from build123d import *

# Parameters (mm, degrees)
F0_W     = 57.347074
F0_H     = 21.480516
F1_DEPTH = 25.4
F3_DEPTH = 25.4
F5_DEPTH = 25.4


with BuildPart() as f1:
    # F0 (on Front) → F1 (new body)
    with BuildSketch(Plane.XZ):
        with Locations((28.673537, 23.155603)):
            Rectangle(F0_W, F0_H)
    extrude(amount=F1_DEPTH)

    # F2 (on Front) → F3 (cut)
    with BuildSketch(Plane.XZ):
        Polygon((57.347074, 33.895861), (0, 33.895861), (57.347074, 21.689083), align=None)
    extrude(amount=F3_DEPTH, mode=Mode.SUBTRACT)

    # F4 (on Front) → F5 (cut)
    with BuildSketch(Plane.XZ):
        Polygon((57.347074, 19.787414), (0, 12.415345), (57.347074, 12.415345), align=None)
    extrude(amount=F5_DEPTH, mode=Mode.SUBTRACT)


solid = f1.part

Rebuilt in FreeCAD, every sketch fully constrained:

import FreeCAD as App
import Part
import Sketcher

V = App.Vector
Q = App.Units.Quantity


def add_polygon(sketch, points):
    """Adds a closed chain of lines whose ends are joined by coincident constraints."""
    first, n = sketch.GeometryCount, len(points)
    for a, b in zip(points, points[1:] + points[:1]):
        sketch.addGeometry(Part.LineSegment(App.Vector(*a, 0), App.Vector(*b, 0)), False)
    for i in range(n):
        sketch.addConstraint(Sketcher.Constraint("Coincident", first + i, 2, first + (i + 1) % n, 1))

doc = App.newDocument("Part")
body = doc.addObject("PartDesign::Body", "Body")

sketch1 = doc.addObject("Sketcher::SketchObject", "Sketch")
body.addObject(sketch1)
sketch1.AttachmentSupport = (doc.XZ_Plane, [""])
sketch1.MapMode = "FlatFace"
add_polygon(sketch1, [(0, 34), (0, 12), (57, 12), (57, 34)])
sketch1.addConstraint([
    Sketcher.Constraint("Vertical", 0),
    Sketcher.Constraint("Horizontal", 1),
    Sketcher.Constraint("Vertical", 2),
    Sketcher.Constraint("Horizontal", 3),
    Sketcher.Constraint("PointOnObject", 0, 2, -2),
    Sketcher.Constraint("DistanceX", 1, 1, 1, 2, 57.347074),
    Sketcher.Constraint("DistanceY", 0, 2, 0, 1, 21.480516),
    Sketcher.Constraint("DistanceY", -1, 1, 2, 2, 33.895861),
])
pad1 = doc.addObject("PartDesign::Pad", "Pad")
body.addObject(pad1)
pad1.Profile = sketch1
pad1.Length = Q("1 in")

sketch2 = doc.addObject("Sketcher::SketchObject", "Sketch001")
body.addObject(sketch2)
sketch2.AttachmentSupport = (doc.XZ_Plane, [""])
sketch2.MapMode = "FlatFace"
add_polygon(sketch2, [(57, 34), (0, 34), (57, 22)])
sketch2.addConstraint([
    Sketcher.Constraint("Horizontal", 0),
    Sketcher.Constraint("Vertical", 2),
    Sketcher.Constraint("PointOnObject", 0, 2, -2),
    Sketcher.Constraint("DistanceX", 0, 2, 0, 1, 57.347074),
    Sketcher.Constraint("DistanceY", 2, 1, 2, 2, 12.206778),
    Sketcher.Constraint("DistanceY", -1, 1, 0, 2, 33.895861),
])
pocket1 = doc.addObject("PartDesign::Pocket", "Pocket")
body.addObject(pocket1)
pocket1.Profile = sketch2
pocket1.Length = Q("1 in")
pocket1.Reversed = True

sketch3 = doc.addObject("Sketcher::SketchObject", "Sketch002")
body.addObject(sketch3)
sketch3.AttachmentSupport = (doc.XZ_Plane, [""])
sketch3.MapMode = "FlatFace"
add_polygon(sketch3, [(57, 20), (0, 12), (57, 12)])
sketch3.addConstraint([
    Sketcher.Constraint("Horizontal", 1),
    Sketcher.Constraint("Vertical", 2),
    Sketcher.Constraint("PointOnObject", 0, 2, -2),
    Sketcher.Constraint("DistanceY", 2, 1, 2, 2, 7.372069),
    Sketcher.Constraint("Distance", 0, 57.818979),
    Sketcher.Constraint("DistanceY", -1, 1, 0, 2, 12.415345),
])
pocket2 = doc.addObject("PartDesign::Pocket", "Pocket001")
body.addObject(pocket2)
pocket2.Profile = sketch3
pocket2.Length = Q("1 in")
pocket2.Reversed = True

doc.recompute()
